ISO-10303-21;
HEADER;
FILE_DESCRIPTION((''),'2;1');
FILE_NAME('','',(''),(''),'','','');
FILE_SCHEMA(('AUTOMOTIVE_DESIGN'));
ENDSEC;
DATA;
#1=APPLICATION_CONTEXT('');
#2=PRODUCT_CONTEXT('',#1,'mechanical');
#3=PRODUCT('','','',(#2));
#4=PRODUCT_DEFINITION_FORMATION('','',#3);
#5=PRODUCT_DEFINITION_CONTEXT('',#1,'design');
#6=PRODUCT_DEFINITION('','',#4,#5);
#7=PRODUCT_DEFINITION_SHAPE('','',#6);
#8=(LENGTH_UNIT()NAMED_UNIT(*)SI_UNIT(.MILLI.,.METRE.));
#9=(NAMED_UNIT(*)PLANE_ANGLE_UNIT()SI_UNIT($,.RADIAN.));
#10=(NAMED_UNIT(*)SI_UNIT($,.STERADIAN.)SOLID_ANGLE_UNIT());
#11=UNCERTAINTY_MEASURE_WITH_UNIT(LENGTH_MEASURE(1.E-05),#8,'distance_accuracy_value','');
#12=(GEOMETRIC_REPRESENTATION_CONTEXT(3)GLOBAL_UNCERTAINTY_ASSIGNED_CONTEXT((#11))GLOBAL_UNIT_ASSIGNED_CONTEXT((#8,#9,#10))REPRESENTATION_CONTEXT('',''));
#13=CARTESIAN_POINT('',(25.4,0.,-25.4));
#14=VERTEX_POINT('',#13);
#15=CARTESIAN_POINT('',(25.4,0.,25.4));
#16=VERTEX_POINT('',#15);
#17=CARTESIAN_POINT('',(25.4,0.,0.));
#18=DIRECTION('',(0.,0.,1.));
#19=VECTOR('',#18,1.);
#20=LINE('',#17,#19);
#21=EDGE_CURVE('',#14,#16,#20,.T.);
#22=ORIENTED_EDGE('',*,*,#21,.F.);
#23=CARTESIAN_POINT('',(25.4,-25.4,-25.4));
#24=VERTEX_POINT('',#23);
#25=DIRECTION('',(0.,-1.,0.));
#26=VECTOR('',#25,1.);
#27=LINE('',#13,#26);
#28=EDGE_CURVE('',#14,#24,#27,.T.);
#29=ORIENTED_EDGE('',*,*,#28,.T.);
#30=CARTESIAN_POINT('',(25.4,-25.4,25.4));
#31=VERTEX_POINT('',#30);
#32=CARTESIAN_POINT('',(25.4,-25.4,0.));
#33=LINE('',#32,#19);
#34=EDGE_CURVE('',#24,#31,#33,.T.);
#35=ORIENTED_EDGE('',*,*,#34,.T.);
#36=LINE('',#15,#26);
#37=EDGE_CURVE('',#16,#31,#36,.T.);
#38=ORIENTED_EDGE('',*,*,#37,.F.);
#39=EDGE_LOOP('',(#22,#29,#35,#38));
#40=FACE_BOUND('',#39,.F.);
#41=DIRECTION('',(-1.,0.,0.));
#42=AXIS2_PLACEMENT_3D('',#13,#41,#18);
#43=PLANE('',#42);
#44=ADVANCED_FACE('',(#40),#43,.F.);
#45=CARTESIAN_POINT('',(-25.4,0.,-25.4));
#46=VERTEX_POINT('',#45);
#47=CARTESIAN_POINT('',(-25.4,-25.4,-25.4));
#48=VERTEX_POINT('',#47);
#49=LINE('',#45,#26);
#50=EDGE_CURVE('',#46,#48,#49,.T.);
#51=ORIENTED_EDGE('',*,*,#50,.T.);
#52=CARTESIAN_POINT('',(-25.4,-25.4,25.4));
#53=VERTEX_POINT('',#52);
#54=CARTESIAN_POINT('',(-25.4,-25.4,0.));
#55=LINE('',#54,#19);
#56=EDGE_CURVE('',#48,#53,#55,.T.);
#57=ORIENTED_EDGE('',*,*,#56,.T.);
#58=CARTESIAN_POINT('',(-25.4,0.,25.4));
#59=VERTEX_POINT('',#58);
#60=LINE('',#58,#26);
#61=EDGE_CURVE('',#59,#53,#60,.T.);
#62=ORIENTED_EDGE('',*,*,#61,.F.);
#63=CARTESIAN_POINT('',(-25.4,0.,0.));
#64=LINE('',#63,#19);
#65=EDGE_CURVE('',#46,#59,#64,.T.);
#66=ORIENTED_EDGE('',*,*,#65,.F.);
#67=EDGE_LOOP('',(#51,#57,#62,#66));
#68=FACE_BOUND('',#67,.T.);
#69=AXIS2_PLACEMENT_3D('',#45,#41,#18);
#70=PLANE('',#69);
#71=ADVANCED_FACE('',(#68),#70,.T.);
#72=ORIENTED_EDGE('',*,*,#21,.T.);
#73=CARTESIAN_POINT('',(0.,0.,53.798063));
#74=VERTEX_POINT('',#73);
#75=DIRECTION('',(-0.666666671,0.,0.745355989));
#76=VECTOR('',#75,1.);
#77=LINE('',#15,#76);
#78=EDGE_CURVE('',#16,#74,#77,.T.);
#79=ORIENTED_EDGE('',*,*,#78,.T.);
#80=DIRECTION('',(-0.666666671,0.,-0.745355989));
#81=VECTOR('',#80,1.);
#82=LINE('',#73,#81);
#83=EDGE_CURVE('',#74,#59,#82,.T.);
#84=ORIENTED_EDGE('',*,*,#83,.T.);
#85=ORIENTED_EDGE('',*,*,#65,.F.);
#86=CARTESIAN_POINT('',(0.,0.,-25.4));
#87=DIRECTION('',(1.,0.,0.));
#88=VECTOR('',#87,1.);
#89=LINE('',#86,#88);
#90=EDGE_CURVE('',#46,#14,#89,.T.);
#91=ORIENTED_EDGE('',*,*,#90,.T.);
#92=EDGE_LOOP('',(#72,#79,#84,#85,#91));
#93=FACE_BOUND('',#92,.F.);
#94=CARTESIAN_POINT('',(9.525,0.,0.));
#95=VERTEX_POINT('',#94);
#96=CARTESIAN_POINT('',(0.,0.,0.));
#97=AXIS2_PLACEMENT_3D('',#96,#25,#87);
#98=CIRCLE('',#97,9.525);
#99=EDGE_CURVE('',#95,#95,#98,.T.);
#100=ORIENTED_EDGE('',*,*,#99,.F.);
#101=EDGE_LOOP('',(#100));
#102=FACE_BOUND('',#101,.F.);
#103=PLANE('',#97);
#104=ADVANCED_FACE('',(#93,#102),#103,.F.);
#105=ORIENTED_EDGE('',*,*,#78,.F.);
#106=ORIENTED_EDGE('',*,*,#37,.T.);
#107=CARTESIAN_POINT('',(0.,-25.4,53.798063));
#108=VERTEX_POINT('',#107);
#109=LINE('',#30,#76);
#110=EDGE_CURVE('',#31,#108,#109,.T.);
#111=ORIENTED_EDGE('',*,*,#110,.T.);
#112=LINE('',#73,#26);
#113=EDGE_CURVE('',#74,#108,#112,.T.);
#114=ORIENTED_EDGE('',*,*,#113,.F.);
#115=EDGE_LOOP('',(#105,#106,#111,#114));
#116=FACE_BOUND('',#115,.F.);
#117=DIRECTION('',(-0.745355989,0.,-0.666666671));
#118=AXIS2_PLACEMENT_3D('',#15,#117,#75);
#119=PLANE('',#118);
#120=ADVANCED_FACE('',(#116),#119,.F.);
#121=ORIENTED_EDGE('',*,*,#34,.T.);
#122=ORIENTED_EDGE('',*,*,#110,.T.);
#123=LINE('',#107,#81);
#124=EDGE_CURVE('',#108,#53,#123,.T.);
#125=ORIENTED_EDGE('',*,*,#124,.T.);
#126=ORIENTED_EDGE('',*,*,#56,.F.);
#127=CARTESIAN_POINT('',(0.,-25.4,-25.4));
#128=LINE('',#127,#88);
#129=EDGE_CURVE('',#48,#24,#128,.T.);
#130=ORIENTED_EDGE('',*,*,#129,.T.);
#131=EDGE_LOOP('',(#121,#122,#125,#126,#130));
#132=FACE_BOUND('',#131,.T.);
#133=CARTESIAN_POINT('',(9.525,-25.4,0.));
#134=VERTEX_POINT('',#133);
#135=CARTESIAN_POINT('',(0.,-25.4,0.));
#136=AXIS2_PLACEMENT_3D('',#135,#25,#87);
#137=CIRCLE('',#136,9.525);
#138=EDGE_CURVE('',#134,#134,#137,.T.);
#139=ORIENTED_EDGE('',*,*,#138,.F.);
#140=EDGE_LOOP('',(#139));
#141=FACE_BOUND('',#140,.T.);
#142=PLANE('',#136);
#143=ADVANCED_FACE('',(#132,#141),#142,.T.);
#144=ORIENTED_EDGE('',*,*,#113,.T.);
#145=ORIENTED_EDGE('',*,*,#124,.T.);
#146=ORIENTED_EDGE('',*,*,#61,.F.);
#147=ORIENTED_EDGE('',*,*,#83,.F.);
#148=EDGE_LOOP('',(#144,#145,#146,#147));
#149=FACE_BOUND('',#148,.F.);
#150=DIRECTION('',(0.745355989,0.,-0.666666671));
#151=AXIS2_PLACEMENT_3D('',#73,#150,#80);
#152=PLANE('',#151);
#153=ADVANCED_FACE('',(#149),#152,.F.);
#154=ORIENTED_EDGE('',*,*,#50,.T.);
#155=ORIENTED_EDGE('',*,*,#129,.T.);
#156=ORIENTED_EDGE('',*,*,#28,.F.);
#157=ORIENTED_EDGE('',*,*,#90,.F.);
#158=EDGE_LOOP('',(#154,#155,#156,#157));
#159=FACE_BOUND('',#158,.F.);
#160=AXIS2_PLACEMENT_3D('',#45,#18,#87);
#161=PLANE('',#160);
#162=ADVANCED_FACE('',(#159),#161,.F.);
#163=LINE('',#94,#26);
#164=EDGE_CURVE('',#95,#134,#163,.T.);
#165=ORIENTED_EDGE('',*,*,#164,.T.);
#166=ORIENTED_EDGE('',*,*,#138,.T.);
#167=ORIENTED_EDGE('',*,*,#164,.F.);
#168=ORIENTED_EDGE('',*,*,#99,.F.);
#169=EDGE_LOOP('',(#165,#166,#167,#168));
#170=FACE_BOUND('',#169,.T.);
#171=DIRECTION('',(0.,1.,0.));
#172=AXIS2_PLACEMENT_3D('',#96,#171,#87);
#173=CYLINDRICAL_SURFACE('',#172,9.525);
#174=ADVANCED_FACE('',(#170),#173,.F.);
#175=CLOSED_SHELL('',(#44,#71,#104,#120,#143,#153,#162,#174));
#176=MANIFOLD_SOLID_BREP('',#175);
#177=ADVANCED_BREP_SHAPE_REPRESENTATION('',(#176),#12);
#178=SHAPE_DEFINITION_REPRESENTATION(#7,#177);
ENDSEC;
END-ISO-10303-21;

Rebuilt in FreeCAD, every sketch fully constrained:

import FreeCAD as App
import Part
import Sketcher
Q = App.Units.Quantity


def add_polygon(sketch, points):
    """Adds a closed chain of lines whose ends are joined by coincident constraints."""
    first, n = sketch.GeometryCount, len(points)
    for a, b in zip(points, points[1:] + points[:1]):
        sketch.addGeometry(Part.LineSegment(App.Vector(*a, 0), App.Vector(*b, 0)), False)
    for i in range(n):
        sketch.addConstraint(Sketcher.Constraint("Coincident", first + i, 2, first + (i + 1) % n, 1))

doc = App.newDocument("Part")
body = doc.addObject("PartDesign::Body", "Body")

# Sketch on XZ plane
sketch1 = body.newObject("Sketcher::SketchObject", "Sketch")
sketch1.AttachmentSupport = (doc.getObject("XZ_Plane"), [""])
sketch1.MapMode = "FlatFace"
add_polygon(sketch1, [(-25.4, 25.4), (-25.4, -25.4), (25.4, -25.4), (25.4, 25.4), (0, 53.798063)])  # lines 0-4
sketch1.addGeometry(Part.Circle(App.Vector(0, 0, 0), App.Vector(0, 0, 1), 9.525), False)  # 5
sketch1.addConstraint(Sketcher.Constraint("Vertical", 0))
sketch1.addConstraint(Sketcher.Constraint("Horizontal", 1))
sketch1.addConstraint(Sketcher.Constraint("Vertical", 2))
sketch1.addConstraint(Sketcher.Constraint("Coincident", 5, 3, -1, 1))
sketch1.addConstraint(Sketcher.Constraint("Symmetric", 0, 2, 2, 2, -1, 1))
sketch1.addConstraint(Sketcher.Constraint("PointOnObject", 3, 2, -2))
sketch1.addConstraint(Sketcher.Constraint("Horizontal", 2, 2, 4, 2))
sketch1.addConstraint(Sketcher.Constraint("Equal", 1, 0))
sketch1.addConstraint(Sketcher.Constraint("Diameter", 5, Q("0.75 in")))
sketch1.addConstraint(Sketcher.Constraint("DistanceX", 1, 1, 1, 2, Q("2 in")))
sketch1.addConstraint(Sketcher.Constraint("Distance", 3, Q("1.5 in")))
pad1 = body.newObject("PartDesign::Pad", "Pad")
pad1.Profile = sketch1
pad1.Length = Q("1 in")

doc.recompute()
